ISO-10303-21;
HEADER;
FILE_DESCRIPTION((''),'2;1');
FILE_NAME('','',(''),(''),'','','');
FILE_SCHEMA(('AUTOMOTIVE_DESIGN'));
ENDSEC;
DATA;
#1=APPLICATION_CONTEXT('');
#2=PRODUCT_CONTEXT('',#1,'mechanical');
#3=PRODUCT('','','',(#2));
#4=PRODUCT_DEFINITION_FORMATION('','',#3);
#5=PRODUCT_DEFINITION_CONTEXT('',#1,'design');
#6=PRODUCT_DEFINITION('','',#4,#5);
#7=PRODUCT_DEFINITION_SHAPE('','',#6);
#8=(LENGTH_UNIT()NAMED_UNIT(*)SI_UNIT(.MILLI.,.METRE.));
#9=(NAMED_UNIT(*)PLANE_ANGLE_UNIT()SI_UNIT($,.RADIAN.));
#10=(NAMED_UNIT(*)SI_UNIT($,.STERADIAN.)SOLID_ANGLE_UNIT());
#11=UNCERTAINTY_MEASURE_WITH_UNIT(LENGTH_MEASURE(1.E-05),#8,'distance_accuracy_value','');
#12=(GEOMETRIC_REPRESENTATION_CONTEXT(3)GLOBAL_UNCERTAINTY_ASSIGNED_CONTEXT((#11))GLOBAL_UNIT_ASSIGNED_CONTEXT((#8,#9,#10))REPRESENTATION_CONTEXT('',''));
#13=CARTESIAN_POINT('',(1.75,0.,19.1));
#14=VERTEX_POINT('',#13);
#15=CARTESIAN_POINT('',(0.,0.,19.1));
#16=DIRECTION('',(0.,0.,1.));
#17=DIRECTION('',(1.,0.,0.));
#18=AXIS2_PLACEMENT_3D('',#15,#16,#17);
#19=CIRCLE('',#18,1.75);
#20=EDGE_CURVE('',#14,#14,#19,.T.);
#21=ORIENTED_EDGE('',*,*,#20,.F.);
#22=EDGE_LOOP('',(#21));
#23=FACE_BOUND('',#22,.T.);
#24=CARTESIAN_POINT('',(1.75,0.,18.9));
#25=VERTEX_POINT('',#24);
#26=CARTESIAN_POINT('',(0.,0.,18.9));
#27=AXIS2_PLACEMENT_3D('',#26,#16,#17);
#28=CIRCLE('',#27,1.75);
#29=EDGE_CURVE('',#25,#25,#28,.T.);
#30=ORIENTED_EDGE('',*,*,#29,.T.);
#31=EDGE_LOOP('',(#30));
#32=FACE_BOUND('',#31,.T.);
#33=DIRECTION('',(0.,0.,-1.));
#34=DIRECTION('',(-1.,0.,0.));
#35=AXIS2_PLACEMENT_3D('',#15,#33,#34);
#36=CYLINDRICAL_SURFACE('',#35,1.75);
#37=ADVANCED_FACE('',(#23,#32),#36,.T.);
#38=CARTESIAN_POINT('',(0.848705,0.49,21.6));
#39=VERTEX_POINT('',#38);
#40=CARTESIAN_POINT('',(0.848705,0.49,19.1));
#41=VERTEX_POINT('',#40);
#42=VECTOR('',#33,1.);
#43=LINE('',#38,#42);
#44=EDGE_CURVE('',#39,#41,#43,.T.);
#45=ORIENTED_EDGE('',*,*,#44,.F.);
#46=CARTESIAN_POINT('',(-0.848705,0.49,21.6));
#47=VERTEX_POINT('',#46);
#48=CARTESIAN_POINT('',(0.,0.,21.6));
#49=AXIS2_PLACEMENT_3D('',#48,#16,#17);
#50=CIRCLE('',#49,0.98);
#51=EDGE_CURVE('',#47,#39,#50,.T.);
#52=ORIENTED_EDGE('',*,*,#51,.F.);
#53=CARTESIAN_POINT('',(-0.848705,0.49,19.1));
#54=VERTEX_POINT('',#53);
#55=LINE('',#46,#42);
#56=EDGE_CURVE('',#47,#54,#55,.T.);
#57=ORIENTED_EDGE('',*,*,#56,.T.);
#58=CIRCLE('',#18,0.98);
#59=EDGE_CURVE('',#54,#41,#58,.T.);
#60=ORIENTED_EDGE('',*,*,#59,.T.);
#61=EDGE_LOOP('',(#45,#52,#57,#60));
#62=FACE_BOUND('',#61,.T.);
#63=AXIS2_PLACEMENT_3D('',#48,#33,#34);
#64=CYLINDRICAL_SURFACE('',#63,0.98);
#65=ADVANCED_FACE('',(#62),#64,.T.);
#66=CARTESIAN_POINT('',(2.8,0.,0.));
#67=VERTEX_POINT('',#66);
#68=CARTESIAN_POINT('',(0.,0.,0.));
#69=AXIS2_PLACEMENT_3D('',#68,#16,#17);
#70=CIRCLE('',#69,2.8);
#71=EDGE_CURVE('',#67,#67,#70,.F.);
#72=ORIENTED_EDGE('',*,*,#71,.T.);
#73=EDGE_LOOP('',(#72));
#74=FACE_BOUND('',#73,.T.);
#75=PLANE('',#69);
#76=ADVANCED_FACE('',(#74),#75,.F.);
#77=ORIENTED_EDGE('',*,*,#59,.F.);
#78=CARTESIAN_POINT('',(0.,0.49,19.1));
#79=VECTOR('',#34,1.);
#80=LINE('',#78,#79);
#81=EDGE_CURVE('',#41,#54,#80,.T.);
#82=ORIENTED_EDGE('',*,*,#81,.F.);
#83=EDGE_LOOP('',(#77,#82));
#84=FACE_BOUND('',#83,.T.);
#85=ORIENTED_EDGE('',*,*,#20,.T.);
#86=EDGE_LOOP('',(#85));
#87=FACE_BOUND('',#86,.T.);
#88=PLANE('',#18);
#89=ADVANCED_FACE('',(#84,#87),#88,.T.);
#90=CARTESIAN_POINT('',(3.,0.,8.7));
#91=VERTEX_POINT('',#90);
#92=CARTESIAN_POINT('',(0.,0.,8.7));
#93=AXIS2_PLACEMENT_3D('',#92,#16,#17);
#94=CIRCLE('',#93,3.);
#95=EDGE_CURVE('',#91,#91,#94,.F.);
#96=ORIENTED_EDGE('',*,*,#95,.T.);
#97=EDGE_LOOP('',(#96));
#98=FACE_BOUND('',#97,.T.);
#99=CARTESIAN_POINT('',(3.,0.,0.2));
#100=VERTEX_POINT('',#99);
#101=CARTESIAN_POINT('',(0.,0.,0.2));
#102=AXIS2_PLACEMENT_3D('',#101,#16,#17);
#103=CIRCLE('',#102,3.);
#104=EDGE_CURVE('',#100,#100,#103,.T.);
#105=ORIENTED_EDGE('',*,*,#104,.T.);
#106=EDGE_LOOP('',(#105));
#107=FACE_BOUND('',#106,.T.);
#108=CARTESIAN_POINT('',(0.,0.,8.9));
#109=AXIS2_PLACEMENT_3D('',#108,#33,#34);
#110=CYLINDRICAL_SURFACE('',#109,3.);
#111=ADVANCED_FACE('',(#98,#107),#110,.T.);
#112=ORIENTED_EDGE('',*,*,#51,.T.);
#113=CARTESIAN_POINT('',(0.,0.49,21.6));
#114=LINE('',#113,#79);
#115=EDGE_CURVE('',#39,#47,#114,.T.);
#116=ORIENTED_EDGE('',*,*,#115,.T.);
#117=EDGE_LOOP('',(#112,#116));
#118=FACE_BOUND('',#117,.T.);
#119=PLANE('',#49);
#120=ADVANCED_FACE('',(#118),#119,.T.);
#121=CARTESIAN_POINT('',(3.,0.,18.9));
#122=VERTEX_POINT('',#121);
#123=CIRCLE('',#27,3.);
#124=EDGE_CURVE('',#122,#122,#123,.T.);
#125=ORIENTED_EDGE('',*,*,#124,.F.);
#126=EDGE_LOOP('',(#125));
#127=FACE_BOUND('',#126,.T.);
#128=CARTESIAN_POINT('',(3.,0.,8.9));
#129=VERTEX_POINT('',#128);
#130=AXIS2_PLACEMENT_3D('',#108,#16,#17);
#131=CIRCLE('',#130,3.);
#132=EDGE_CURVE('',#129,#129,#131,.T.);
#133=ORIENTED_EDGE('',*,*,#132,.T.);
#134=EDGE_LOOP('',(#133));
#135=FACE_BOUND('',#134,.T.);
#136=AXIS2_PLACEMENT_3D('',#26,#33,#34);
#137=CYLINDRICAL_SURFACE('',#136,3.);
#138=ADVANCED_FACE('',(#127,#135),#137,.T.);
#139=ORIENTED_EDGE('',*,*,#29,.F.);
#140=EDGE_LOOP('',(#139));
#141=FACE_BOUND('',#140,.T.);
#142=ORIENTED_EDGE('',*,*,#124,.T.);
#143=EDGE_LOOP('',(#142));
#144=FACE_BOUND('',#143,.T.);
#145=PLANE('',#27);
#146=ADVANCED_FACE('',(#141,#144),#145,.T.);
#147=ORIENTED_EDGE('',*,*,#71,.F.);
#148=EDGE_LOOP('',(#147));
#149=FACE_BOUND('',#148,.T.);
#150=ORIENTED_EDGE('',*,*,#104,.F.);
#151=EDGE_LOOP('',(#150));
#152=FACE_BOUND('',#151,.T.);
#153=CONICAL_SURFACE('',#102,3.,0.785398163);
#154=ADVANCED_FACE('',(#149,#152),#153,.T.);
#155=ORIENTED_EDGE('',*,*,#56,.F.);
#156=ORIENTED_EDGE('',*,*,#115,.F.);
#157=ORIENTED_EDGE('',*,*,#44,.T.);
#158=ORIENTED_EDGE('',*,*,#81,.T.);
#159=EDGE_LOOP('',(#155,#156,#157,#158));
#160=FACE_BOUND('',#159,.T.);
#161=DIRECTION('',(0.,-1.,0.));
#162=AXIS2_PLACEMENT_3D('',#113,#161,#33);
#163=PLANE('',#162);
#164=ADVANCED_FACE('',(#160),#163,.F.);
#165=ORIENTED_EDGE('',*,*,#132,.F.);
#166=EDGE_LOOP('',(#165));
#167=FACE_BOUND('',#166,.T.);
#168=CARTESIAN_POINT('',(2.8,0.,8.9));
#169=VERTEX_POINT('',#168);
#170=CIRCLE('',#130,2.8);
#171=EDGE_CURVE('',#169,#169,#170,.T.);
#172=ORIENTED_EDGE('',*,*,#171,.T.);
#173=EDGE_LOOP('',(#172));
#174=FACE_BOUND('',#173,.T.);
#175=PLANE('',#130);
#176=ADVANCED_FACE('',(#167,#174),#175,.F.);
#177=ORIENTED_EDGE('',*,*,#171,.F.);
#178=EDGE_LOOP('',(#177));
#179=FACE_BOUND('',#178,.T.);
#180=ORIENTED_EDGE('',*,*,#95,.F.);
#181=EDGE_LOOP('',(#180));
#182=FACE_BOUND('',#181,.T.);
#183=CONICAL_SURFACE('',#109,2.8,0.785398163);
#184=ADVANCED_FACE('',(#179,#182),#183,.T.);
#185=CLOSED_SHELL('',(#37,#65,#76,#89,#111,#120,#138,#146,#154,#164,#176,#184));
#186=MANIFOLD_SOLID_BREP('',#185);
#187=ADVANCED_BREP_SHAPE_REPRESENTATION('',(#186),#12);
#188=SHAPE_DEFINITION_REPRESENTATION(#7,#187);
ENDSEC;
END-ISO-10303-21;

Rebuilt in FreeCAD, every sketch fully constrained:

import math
import FreeCAD as App
import Part
import Sketcher
from FreeCAD import Vector


def edges_at(feature, points):
    """Names of the edges that pass closest to the given points."""
    edges = feature.Shape.Edges
    near = lambda p: min(range(len(edges)), key=lambda i: edges[i].distToShape(Part.Vertex(*p))[0])
    return sorted({f"Edge{near(p) + 1}" for p in points})

doc = App.newDocument("Part")
body = doc.addObject("PartDesign::Body", "Body")

# Sketch on XY plane
sketch1 = doc.addObject("Sketcher::SketchObject", "Sketch")
body.addObject(sketch1)
sketch1.AttachmentSupport = (doc.XY_Plane, [""])
sketch1.MapMode = "FlatFace"
sketch1.addGeometry(Part.Circle(Vector(0, 0, 0), Vector(0, 0, 1), 3), False)
sketch1.addConstraint([
    Sketcher.Constraint("Coincident", 0, 3, -1, 1),
    Sketcher.Constraint("Diameter", 0, 6.0),
])
pad1 = doc.addObject("PartDesign::Pad", "Pad")
body.addObject(pad1)
pad1.Profile = sketch1
pad1.Length = 8.9
doc.recompute()

chamfer = doc.addObject("PartDesign::Chamfer", "Chamfer")
body.addObject(chamfer)
chamfer.Base = (pad1, edges_at(pad1, [(-3, 0, 0), (-3, 0, 8.9)]))
chamfer.Size = 0.2

# Sketch on XY plane
sketch2 = doc.addObject("Sketcher::SketchObject", "Sketch001")
body.addObject(sketch2)
sketch2.AttachmentSupport = (doc.XY_Plane, [""])
sketch2.MapMode = "FlatFace"
sketch2.AttachmentOffset = App.Placement(Vector(0, 0, 8.9), App.Rotation())
sketch2.addGeometry(Part.Circle(Vector(0, 0, 0), Vector(0, 0, 1), 3), False)
sketch2.addConstraint([
    Sketcher.Constraint("Coincident", 0, 3, -1, 1),
    Sketcher.Constraint("Diameter", 0, 6.0),
])
pad2 = doc.addObject("PartDesign::Pad", "Pad001")
body.addObject(pad2)
pad2.Profile = sketch2
pad2.Length = 10

# Sketch on XY plane
sketch3 = doc.addObject("Sketcher::SketchObject", "Sketch002")
body.addObject(sketch3)
sketch3.AttachmentSupport = (doc.XY_Plane, [""])
sketch3.MapMode = "FlatFace"
sketch3.AttachmentOffset = App.Placement(Vector(0, 0, 18.9), App.Rotation())
sketch3.addGeometry(Part.Circle(Vector(0, 0, 0), Vector(0, 0, 1), 1.8), False)
sketch3.addConstraint([
    Sketcher.Constraint("Coincident", 0, 3, -1, 1),
    Sketcher.Constraint("Diameter", 0, 3.5),
])
pad3 = doc.addObject("PartDesign::Pad", "Pad002")
body.addObject(pad3)
pad3.Profile = sketch3
pad3.Length = 0.2

# Sketch on XY plane
sketch4 = doc.addObject("Sketcher::SketchObject", "Sketch003")
body.addObject(sketch4)
sketch4.AttachmentSupport = (doc.XY_Plane, [""])
sketch4.MapMode = "FlatFace"
sketch4.AttachmentOffset = App.Placement(Vector(0, 0, 19.1), App.Rotation())
sketch4.addGeometry([
    Part.ArcOfCircle(Part.Circle(Vector(0, 0, 0), Vector(0, 0, 1), 1), math.radians(150), math.radians(390)),
    Part.LineSegment(Vector(0.8, 0.5, 0), Vector(-0.8, 0.5, 0)),
], False)
sketch4.addConstraint([
    Sketcher.Constraint("Coincident", 0, 1, 1, 2),
    Sketcher.Constraint("Coincident", 1, 1, 0, 2),
    Sketcher.Constraint("Horizontal", 1),
    Sketcher.Constraint("Coincident", 0, 3, -1, 1),
    Sketcher.Constraint("Radius", 0, 0.98),
    Sketcher.Constraint("DistanceY", -1, 1, 0, 1, 0.49),
])
pad4 = doc.addObject("PartDesign::Pad", "Pad003")
body.addObject(pad4)
pad4.Profile = sketch4
pad4.Length = 2.5

doc.recompute()
